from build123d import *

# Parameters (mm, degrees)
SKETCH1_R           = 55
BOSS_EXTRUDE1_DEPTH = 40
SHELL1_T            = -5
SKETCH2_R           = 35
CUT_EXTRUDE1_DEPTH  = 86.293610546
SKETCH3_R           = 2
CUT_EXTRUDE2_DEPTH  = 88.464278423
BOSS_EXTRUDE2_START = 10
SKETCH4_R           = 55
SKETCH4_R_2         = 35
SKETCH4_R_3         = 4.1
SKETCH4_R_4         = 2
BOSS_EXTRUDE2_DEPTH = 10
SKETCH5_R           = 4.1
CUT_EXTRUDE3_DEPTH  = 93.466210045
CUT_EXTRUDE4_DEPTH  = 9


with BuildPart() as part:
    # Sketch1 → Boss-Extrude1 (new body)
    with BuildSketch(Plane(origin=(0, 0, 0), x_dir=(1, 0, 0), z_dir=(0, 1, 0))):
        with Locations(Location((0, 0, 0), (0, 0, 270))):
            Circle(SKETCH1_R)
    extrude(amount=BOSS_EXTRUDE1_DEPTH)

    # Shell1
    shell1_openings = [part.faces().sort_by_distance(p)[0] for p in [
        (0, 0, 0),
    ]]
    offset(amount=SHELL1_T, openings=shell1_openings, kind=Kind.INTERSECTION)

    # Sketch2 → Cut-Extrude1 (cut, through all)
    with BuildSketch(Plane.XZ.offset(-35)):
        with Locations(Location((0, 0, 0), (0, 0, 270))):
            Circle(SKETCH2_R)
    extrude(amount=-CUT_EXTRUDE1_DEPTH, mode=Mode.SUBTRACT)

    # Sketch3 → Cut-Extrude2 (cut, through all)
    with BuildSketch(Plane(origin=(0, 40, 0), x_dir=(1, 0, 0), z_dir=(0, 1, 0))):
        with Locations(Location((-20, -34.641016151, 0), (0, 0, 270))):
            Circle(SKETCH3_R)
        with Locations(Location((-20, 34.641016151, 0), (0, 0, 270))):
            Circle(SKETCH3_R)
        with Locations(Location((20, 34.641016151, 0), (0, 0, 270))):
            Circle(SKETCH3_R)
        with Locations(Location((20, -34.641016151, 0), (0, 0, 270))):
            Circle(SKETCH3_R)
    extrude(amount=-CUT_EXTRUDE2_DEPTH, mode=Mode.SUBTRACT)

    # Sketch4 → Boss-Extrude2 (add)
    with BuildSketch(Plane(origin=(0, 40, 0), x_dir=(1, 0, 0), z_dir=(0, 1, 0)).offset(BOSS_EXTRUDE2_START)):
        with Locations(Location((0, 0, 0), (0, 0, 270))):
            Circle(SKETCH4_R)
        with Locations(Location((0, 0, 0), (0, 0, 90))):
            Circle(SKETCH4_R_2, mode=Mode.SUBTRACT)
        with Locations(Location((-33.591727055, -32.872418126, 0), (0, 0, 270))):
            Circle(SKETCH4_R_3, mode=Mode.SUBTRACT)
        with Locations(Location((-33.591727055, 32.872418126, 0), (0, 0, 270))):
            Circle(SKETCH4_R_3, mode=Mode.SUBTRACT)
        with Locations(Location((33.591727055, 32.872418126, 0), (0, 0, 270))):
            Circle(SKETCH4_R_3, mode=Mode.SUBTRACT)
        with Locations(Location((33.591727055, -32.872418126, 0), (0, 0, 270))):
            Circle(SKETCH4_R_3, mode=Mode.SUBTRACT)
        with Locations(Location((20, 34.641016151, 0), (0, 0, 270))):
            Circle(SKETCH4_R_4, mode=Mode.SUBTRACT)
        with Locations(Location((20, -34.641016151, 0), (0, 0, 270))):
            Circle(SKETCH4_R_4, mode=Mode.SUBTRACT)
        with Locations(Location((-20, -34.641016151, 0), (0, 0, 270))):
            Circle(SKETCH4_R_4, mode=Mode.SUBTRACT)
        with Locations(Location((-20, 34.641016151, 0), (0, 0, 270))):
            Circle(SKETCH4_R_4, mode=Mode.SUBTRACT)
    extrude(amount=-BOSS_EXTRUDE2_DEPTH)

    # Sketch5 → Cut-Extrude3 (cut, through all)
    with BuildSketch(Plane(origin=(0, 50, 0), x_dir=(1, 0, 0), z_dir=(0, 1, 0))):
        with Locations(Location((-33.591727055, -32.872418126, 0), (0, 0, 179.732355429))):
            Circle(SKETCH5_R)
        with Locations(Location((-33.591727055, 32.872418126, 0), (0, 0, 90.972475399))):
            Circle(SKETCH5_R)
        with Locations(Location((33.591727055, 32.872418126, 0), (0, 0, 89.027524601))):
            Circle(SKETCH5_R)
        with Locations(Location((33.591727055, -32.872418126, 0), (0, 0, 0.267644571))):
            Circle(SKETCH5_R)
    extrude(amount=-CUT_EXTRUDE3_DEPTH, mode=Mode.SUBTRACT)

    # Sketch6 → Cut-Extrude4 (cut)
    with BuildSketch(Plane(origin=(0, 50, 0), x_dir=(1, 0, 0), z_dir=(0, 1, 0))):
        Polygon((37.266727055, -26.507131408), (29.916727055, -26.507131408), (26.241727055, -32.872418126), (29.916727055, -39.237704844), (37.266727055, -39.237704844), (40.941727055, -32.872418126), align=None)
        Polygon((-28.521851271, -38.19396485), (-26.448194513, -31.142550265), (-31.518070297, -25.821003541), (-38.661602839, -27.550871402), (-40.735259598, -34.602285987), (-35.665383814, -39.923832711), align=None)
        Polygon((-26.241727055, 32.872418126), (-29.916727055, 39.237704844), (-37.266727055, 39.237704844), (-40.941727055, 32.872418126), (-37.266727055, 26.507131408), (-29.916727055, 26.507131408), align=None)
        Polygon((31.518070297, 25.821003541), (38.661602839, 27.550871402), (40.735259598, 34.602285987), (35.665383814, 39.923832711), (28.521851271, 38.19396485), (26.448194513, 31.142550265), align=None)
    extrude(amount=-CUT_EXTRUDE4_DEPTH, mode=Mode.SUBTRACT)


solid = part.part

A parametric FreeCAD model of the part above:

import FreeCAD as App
import Part
import Sketcher
Q = App.Units.Quantity


def faces_at(feature, points):
    """Names of the faces that lie closest to the given points."""
    faces = feature.Shape.Faces
    near = lambda p: min(range(len(faces)), key=lambda i: faces[i].distToShape(Part.Vertex(*p))[0])
    return sorted({f"Face{near(p) + 1}" for p in points})


def add_polygon(sketch, points):
    """Adds a closed chain of lines whose ends are joined by coincident constraints."""
    first, n = sketch.GeometryCount, len(points)
    for a, b in zip(points, points[1:] + points[:1]):
        sketch.addGeometry(Part.LineSegment(App.Vector(*a, 0), App.Vector(*b, 0)), False)
    for i in range(n):
        sketch.addConstraint(Sketcher.Constraint("Coincident", first + i, 2, first + (i + 1) % n, 1))

doc = App.newDocument("Part")
body = doc.addObject("PartDesign::Body", "Body")

# Sketch on XZ plane
sketch1 = doc.addObject("Sketcher::SketchObject", "Sketch")
body.addObject(sketch1)
sketch1.AttachmentSupport = (doc.XZ_Plane, [""])
sketch1.MapMode = "FlatFace"
sketch1.addGeometry(Part.Circle(App.Vector(0, 0, 0), App.Vector(0, 0, 1), 55), False)
sketch1.addConstraint(Sketcher.Constraint("Coincident", 0, 3, -1, 1))
sketch1.addConstraint(Sketcher.Constraint("Diameter", 0, Q("110 mm")))
pad1 = doc.addObject("PartDesign::Pad", "Pad")
body.addObject(pad1)
pad1.Profile = sketch1
pad1.Length = 40
pad1.Reversed = True
doc.recompute()

thickness = doc.addObject("PartDesign::Thickness", "Thickness")
body.addObject(thickness)
thickness.Base = (pad1, faces_at(pad1, [(0, 0, 0)]))
thickness.Value = 5
thickness.Reversed = True
thickness.Join = "Intersection"

# Sketch on XZ plane
sketch2 = doc.addObject("Sketcher::SketchObject", "Sketch001")
body.addObject(sketch2)
sketch2.AttachmentSupport = (doc.XZ_Plane, [""])
sketch2.MapMode = "FlatFace"
sketch2.AttachmentOffset = App.Placement(App.Vector(0, 0, -35), App.Rotation())
sketch2.addGeometry(Part.Circle(App.Vector(0, 0, 0), App.Vector(0, 0, 1), 35), False)
sketch2.addConstraint(Sketcher.Constraint("Coincident", 0, 3, -1, 1))
sketch2.addConstraint(Sketcher.Constraint("Diameter", 0, Q("70 mm")))
pocket1 = doc.addObject("PartDesign::Pocket", "Pocket")
body.addObject(pocket1)
pocket1.Profile = sketch2
pocket1.Type = "ThroughAll"

# Sketch on XZ plane
sketch3 = doc.addObject("Sketcher::SketchObject", "Sketch002")
body.addObject(sketch3)
sketch3.AttachmentSupport = (doc.XZ_Plane, [""])
sketch3.MapMode = "FlatFace"
sketch3.AttachmentOffset = App.Placement(App.Vector(0, 0, -40), App.Rotation())
sketch3.addGeometry(Part.Circle(App.Vector(-20, 34.641016, 0), App.Vector(0, 0, 1), 2), False)
sketch3.addGeometry(Part.Circle(App.Vector(-20, -34.641016, 0), App.Vector(0, 0, 1), 2), False)
sketch3.addGeometry(Part.Circle(App.Vector(20, -34.641016, 0), App.Vector(0, 0, 1), 2), False)
sketch3.addGeometry(Part.Circle(App.Vector(20, 34.641016, 0), App.Vector(0, 0, 1), 2), False)
sketch3.addConstraint(Sketcher.Constraint("Equal", 0, 1))
sketch3.addConstraint(Sketcher.Constraint("Equal", 1, 2))
sketch3.addConstraint(Sketcher.Constraint("Equal", 2, 3))
sketch3.addConstraint(Sketcher.Constraint("Symmetric", 0, 3, 2, 3, -1, 1))
sketch3.addConstraint(Sketcher.Constraint("Symmetric", 1, 3, 3, 3, -1, 1))
sketch3.addConstraint(Sketcher.Constraint("Symmetric", 1, 3, 2, 3, -2))
sketch3.addConstraint(Sketcher.Constraint("Diameter", 0, Q("4 mm")))
sketch3.addConstraint(Sketcher.Constraint("DistanceX", 0, 3, -1, 1, Q("20 mm")))
sketch3.addConstraint(Sketcher.Constraint("DistanceY", -1, 1, 0, 3, Q("34.641016 mm")))
pocket2 = doc.addObject("PartDesign::Pocket", "Pocket001")
body.addObject(pocket2)
pocket2.Profile = sketch3
pocket2.Type = "ThroughAll"
pocket2.Reversed = True

# Sketch on XZ plane
sketch4 = doc.addObject("Sketcher::SketchObject", "Sketch003")
body.addObject(sketch4)
sketch4.AttachmentSupport = (doc.XZ_Plane, [""])
sketch4.MapMode = "FlatFace"
sketch4.AttachmentOffset = App.Placement(App.Vector(0, 0, -50), App.Rotation())
sketch4.addGeometry(Part.Circle(App.Vector(0, 0, 0), App.Vector(0, 0, 1), 55), False)
sketch4.addGeometry(Part.Circle(App.Vector(-33.591727, -32.872418, 0), App.Vector(0, 0, 1), 4.1), False)
sketch4.addGeometry(Part.Circle(App.Vector(-20, -34.641016, 0), App.Vector(0, 0, 1), 2), False)
sketch4.addGeometry(Part.Circle(App.Vector(-33.591727, 32.872418, 0), App.Vector(0, 0, 1), 4.1), False)
sketch4.addGeometry(Part.Circle(App.Vector(-20, 34.641016, 0), App.Vector(0, 0, 1), 2), False)
sketch4.addGeometry(Part.Circle(App.Vector(20, -34.641016, 0), App.Vector(0, 0, 1), 2), False)
sketch4.addGeometry(Part.Circle(App.Vector(33.591727, -32.872418, 0), App.Vector(0, 0, 1), 4.1), False)
sketch4.addGeometry(Part.Circle(App.Vector(0, 0, 0), App.Vector(0, 0, 1), 35), False)
sketch4.addGeometry(Part.Circle(App.Vector(20, 34.641016, 0), App.Vector(0, 0, 1), 2), False)
sketch4.addGeometry(Part.Circle(App.Vector(33.591727, 32.872418, 0), App.Vector(0, 0, 1), 4.1), False)
sketch4.addConstraint(Sketcher.Constraint("Coincident", 0, 3, -1, 1))
sketch4.addConstraint(Sketcher.Constraint("Coincident", 7, 3, -1, 1))
sketch4.addConstraint(Sketcher.Constraint("Equal", 1, 3))
sketch4.addConstraint(Sketcher.Constraint("Equal", 2, 4))
sketch4.addConstraint(Sketcher.Constraint("Equal", 4, 5))
sketch4.addConstraint(Sketcher.Constraint("Equal", 3, 6))
sketch4.addConstraint(Sketcher.Constraint("Equal", 5, 8))
sketch4.addConstraint(Sketcher.Constraint("Equal", 6, 9))
sketch4.addConstraint(Sketcher.Constraint("Symmetric", 4, 3, 5, 3, -1, 1))
sketch4.addConstraint(Sketcher.Constraint("Symmetric", 3, 3, 6, 3, -1, 1))
sketch4.addConstraint(Sketcher.Constraint("Symmetric", 2, 3, 8, 3, -1, 1))
sketch4.addConstraint(Sketcher.Constraint("Symmetric", 1, 3, 9, 3, -1, 1))
sketch4.addConstraint(Sketcher.Constraint("Symmetric", 2, 3, 5, 3, -2))
sketch4.addConstraint(Sketcher.Constraint("Symmetric", 1, 3, 6, 3, -2))
sketch4.addConstraint(Sketcher.Constraint("Diameter", 0, Q("110 mm")))
sketch4.addConstraint(Sketcher.Constraint("Diameter", 2, Q("4 mm")))
sketch4.addConstraint(Sketcher.Constraint("Diameter", 7, Q("70 mm")))
sketch4.addConstraint(Sketcher.Constraint("Diameter", 1, Q("8.2 mm")))
sketch4.addConstraint(Sketcher.Constraint("DistanceX", 2, 3, -1, 1, Q("20 mm")))
sketch4.addConstraint(Sketcher.Constraint("DistanceY", 2, 3, 1, 3, Q("1.768598 mm")))
sketch4.addConstraint(Sketcher.Constraint("DistanceY", 1, 3, -1, 1, Q("32.872418 mm")))
sketch4.addConstraint(Sketcher.Constraint("DistanceX", 1, 3, -1, 1, Q("33.591727 mm")))
pad2 = doc.addObject("PartDesign::Pad", "Pad001")
body.addObject(pad2)
pad2.Profile = sketch4
pad2.Length = 10

# Sketch on XZ plane
sketch5 = doc.addObject("Sketcher::SketchObject", "Sketch004")
body.addObject(sketch5)
sketch5.AttachmentSupport = (doc.XZ_Plane, [""])
sketch5.MapMode = "FlatFace"
sketch5.AttachmentOffset = App.Placement(App.Vector(0, 0, -50), App.Rotation())
sketch5.addGeometry(Part.Circle(App.Vector(-33.591727, 32.872418, 0), App.Vector(0, 0, 1), 4.1), False)
sketch5.addGeometry(Part.Circle(App.Vector(-33.591727, -32.872418, 0), App.Vector(0, 0, 1), 4.1), False)
sketch5.addGeometry(Part.Circle(App.Vector(33.591727, -32.872418, 0), App.Vector(0, 0, 1), 4.1), False)
sketch5.addGeometry(Part.Circle(App.Vector(33.591727, 32.872418, 0), App.Vector(0, 0, 1), 4.1), False)
sketch5.addConstraint(Sketcher.Constraint("Equal", 0, 1))
sketch5.addConstraint(Sketcher.Constraint("Equal", 1, 2))
sketch5.addConstraint(Sketcher.Constraint("Equal", 2, 3))
sketch5.addConstraint(Sketcher.Constraint("Symmetric", 0, 3, 2, 3, -1, 1))
sketch5.addConstraint(Sketcher.Constraint("Symmetric", 1, 3, 3, 3, -1, 1))
sketch5.addConstraint(Sketcher.Constraint("Symmetric", 1, 3, 2, 3, -2))
sketch5.addConstraint(Sketcher.Constraint("Diameter", 0, Q("8.2 mm")))
sketch5.addConstraint(Sketcher.Constraint("DistanceY", -1, 1, 0, 3, Q("32.872418 mm")))
sketch5.addConstraint(Sketcher.Constraint("DistanceX", 0, 3, -1, 1, Q("33.591727 mm")))
pocket3 = doc.addObject("PartDesign::Pocket", "Pocket002")
body.addObject(pocket3)
pocket3.Profile = sketch5
pocket3.Type = "ThroughAll"
pocket3.Reversed = True

# Sketch on XZ plane
sketch6 = doc.addObject("Sketcher::SketchObject", "Sketch005")
body.addObject(sketch6)
sketch6.AttachmentSupport = (doc.XZ_Plane, [""])
sketch6.MapMode = "FlatFace"
sketch6.AttachmentOffset = App.Placement(App.Vector(0, 0, -50), App.Rotation())
add_polygon(sketch6, [(37.266727, 26.507131), (29.916727, 26.507131), (26.241727, 32.872418), (29.916727, 39.237705), (37.266727, 39.237705), (40.941727, 32.872418)])  # lines 0-5
add_polygon(sketch6, [(-28.521851, 38.193965), (-26.448195, 31.14255), (-31.51807, 25.821004), (-38.661603, 27.550871), (-40.73526, 34.602286), (-35.665384, 39.923833)])  # lines 6-11
add_polygon(sketch6, [(-26.241727, -32.872418), (-29.916727, -39.237705), (-37.266727, -39.237705), (-40.941727, -32.872418), (-37.266727, -26.507131), (-29.916727, -26.507131)])  # lines 12-17
add_polygon(sketch6, [(31.51807, -25.821004), (38.661603, -27.550871), (40.73526, -34.602286), (35.665384, -39.923833), (28.521851, -38.193965), (26.448195, -31.14255)])  # lines 18-23
sketch6.addConstraint(Sketcher.Constraint("Horizontal", 0))
sketch6.addConstraint(Sketcher.Constraint("Horizontal", 3))
sketch6.addConstraint(Sketcher.Constraint("Horizontal", 13))
sketch6.addConstraint(Sketcher.Constraint("Horizontal", 16))
sketch6.addConstraint(Sketcher.Constraint("Symmetric", 2, 2, 12, 2, -1, 1))
sketch6.addConstraint(Sketcher.Constraint("Symmetric", 4, 2, 14, 2, -1, 1))
sketch6.addConstraint(Sketcher.Constraint("Symmetric", 5, 2, 15, 2, -1, 1))
sketch6.addConstraint(Sketcher.Constraint("Symmetric", 1, 2, 17, 2, -1, 1))
sketch6.addConstraint(Sketcher.Constraint("Symmetric", 8, 2, 18, 2, -1, 1))
sketch6.addConstraint(Sketcher.Constraint("Symmetric", 9, 2, 19, 2, -1, 1))
sketch6.addConstraint(Sketcher.Constraint("Symmetric", 10, 2, 20, 2, -1, 1))
sketch6.addConstraint(Sketcher.Constraint("Symmetric", 11, 2, 21, 2, -1, 1))
sketch6.addConstraint(Sketcher.Constraint("Symmetric", 6, 2, 22, 2, -1, 1))
sketch6.addConstraint(Sketcher.Constraint("Symmetric", 7, 2, 23, 2, -1, 1))
sketch6.addConstraint(Sketcher.Constraint("Parallel", 1, 4))
sketch6.addConstraint(Sketcher.Constraint("Parallel", 2, 5))
sketch6.addConstraint(Sketcher.Constraint("Parallel", 6, 9))
sketch6.addConstraint(Sketcher.Constraint("Parallel", 7, 10))
sketch6.addConstraint(Sketcher.Constraint("Parallel", 8, 11))
sketch6.addConstraint(Sketcher.Constraint("Parallel", 4, 14))
sketch6.addConstraint(Sketcher.Constraint("Parallel", 14, 17))
sketch6.addConstraint(Sketcher.Constraint("Horizontal", 1, 2, 4, 2))
sketch6.addConstraint(Sketcher.Constraint("Vertical", 0, 2, 2, 2))
sketch6.addConstraint(Sketcher.Constraint("Vertical", 3, 2, 5, 2))
sketch6.addConstraint(Sketcher.Constraint("Equal", 5, 6))
sketch6.addConstraint(Sketcher.Constraint("Equal", 6, 7))
sketch6.addConstraint(Sketcher.Constraint("Equal", 7, 8))
sketch6.addConstraint(Sketcher.Constraint("Equal", 8, 9))
sketch6.addConstraint(Sketcher.Constraint("Angle", 1, Q("120 deg")))
sketch6.addConstraint(Sketcher.Constraint("DistanceX", 0, 2, 0, 1, Q("7.35 mm")))
sketch6.addConstraint(Sketcher.Constraint("DistanceX", 1, 2, 4, 2, Q("14.7 mm")))
sketch6.addConstraint(Sketcher.Constraint("DistanceY", 7, 2, 2, 2, Q("13.416701 mm")))
sketch6.addConstraint(Sketcher.Constraint("DistanceY", -1, 1, 0, 2, Q("26.507131 mm")))
sketch6.addConstraint(Sketcher.Constraint("DistanceY", -1, 1, 6, 2, Q("31.14255 mm")))
sketch6.addConstraint(Sketcher.Constraint("DistanceX", 7, 2, -1, 1, Q("31.51807 mm")))
sketch6.addConstraint(Sketcher.Constraint("DistanceY", -1, 1, 8, 2, Q("27.550871 mm")))
sketch6.addConstraint(Sketcher.Constraint("DistanceX", 9, 2, -1, 1, Q("40.73526 mm")))
sketch6.addConstraint(Sketcher.Constraint("DistanceX", 6, 2, 1, 2, Q("52.689922 mm")))
pocket4 = doc.addObject("PartDesign::Pocket", "Pocket003")
body.addObject(pocket4)
pocket4.Profile = sketch6
pocket4.Length = 9
pocket4.Reversed = True

doc.recompute()
